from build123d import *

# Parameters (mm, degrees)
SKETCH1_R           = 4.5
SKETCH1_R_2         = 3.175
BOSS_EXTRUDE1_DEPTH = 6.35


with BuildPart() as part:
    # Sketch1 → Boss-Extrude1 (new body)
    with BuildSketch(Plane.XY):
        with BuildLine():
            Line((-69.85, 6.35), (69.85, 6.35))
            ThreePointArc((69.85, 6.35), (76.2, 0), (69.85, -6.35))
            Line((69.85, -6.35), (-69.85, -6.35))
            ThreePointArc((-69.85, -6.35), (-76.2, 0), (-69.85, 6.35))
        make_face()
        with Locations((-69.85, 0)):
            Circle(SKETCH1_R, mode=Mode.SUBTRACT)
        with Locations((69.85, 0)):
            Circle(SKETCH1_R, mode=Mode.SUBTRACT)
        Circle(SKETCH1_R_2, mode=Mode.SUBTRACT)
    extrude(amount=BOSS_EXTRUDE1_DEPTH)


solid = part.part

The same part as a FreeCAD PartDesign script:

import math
import FreeCAD as App
import Part
import Sketcher

V = App.Vector
Q = App.Units.Quantity

doc = App.newDocument("Part")
body = doc.addObject("PartDesign::Body", "Body")

sketch1 = body.newObject("Sketcher::SketchObject", "Sketch")
sketch1.AttachmentSupport = (doc.getObject("XY_Plane"), [""])
sketch1.MapMode = "FlatFace"
sketch1.addGeometry([
    Part.LineSegment(V(69.8, 6.3, 0), V(-69.8, 6.3, 0)),
    Part.ArcOfCircle(Part.Circle(V(-69.8, 0, 0), V(0, 0, 1), 6.3), math.radians(90), math.radians(270)),
    Part.LineSegment(V(-69.8, -6.3, 0), V(69.8, -6.3, 0)),
    Part.ArcOfCircle(Part.Circle(V(69.8, 0, 0), V(0, 0, 1), 6.3), math.radians(-90), math.radians(90)),
    Part.Circle(V(69.8, 0, 0), V(0, 0, 1), 4.5),
    Part.Circle(V(0, 0, 0), V(0, 0, 1), 3.2),
    Part.Circle(V(-69.8, 0, 0), V(0, 0, 1), 4.5),
], False)
sketch1.addConstraint([
    Sketcher.Constraint("Tangent", 0, 2, 1, 1),
    Sketcher.Constraint("Tangent", 1, 2, 2, 1),
    Sketcher.Constraint("Tangent", 2, 2, 3, 1),
    Sketcher.Constraint("Tangent", 3, 2, 0, 1),
    Sketcher.Constraint("Horizontal", 0),
    Sketcher.Constraint("Horizontal", 2),
    Sketcher.Constraint("Coincident", 5, 3, -1, 1),
    Sketcher.Constraint("Coincident", 4, 3, 3, 3),
    Sketcher.Constraint("Coincident", 6, 3, 1, 3),
    Sketcher.Constraint("Equal", 4, 6),
    Sketcher.Constraint("Symmetric", 1, 3, 3, 3, -1, 1),
    Sketcher.Constraint("Diameter", 5, Q("0.25 in")),
    Sketcher.Constraint("Radius", 1, Q("0.25 in")),
    Sketcher.Constraint("DistanceX", 0, 2, 0, 1, Q("5.5 in")),
    Sketcher.Constraint("Diameter", 4, 9.0),
])
pad1 = body.newObject("PartDesign::Pad", "Pad")
pad1.Profile = sketch1
pad1.Length = Q("0.25 in")

doc.recompute()
